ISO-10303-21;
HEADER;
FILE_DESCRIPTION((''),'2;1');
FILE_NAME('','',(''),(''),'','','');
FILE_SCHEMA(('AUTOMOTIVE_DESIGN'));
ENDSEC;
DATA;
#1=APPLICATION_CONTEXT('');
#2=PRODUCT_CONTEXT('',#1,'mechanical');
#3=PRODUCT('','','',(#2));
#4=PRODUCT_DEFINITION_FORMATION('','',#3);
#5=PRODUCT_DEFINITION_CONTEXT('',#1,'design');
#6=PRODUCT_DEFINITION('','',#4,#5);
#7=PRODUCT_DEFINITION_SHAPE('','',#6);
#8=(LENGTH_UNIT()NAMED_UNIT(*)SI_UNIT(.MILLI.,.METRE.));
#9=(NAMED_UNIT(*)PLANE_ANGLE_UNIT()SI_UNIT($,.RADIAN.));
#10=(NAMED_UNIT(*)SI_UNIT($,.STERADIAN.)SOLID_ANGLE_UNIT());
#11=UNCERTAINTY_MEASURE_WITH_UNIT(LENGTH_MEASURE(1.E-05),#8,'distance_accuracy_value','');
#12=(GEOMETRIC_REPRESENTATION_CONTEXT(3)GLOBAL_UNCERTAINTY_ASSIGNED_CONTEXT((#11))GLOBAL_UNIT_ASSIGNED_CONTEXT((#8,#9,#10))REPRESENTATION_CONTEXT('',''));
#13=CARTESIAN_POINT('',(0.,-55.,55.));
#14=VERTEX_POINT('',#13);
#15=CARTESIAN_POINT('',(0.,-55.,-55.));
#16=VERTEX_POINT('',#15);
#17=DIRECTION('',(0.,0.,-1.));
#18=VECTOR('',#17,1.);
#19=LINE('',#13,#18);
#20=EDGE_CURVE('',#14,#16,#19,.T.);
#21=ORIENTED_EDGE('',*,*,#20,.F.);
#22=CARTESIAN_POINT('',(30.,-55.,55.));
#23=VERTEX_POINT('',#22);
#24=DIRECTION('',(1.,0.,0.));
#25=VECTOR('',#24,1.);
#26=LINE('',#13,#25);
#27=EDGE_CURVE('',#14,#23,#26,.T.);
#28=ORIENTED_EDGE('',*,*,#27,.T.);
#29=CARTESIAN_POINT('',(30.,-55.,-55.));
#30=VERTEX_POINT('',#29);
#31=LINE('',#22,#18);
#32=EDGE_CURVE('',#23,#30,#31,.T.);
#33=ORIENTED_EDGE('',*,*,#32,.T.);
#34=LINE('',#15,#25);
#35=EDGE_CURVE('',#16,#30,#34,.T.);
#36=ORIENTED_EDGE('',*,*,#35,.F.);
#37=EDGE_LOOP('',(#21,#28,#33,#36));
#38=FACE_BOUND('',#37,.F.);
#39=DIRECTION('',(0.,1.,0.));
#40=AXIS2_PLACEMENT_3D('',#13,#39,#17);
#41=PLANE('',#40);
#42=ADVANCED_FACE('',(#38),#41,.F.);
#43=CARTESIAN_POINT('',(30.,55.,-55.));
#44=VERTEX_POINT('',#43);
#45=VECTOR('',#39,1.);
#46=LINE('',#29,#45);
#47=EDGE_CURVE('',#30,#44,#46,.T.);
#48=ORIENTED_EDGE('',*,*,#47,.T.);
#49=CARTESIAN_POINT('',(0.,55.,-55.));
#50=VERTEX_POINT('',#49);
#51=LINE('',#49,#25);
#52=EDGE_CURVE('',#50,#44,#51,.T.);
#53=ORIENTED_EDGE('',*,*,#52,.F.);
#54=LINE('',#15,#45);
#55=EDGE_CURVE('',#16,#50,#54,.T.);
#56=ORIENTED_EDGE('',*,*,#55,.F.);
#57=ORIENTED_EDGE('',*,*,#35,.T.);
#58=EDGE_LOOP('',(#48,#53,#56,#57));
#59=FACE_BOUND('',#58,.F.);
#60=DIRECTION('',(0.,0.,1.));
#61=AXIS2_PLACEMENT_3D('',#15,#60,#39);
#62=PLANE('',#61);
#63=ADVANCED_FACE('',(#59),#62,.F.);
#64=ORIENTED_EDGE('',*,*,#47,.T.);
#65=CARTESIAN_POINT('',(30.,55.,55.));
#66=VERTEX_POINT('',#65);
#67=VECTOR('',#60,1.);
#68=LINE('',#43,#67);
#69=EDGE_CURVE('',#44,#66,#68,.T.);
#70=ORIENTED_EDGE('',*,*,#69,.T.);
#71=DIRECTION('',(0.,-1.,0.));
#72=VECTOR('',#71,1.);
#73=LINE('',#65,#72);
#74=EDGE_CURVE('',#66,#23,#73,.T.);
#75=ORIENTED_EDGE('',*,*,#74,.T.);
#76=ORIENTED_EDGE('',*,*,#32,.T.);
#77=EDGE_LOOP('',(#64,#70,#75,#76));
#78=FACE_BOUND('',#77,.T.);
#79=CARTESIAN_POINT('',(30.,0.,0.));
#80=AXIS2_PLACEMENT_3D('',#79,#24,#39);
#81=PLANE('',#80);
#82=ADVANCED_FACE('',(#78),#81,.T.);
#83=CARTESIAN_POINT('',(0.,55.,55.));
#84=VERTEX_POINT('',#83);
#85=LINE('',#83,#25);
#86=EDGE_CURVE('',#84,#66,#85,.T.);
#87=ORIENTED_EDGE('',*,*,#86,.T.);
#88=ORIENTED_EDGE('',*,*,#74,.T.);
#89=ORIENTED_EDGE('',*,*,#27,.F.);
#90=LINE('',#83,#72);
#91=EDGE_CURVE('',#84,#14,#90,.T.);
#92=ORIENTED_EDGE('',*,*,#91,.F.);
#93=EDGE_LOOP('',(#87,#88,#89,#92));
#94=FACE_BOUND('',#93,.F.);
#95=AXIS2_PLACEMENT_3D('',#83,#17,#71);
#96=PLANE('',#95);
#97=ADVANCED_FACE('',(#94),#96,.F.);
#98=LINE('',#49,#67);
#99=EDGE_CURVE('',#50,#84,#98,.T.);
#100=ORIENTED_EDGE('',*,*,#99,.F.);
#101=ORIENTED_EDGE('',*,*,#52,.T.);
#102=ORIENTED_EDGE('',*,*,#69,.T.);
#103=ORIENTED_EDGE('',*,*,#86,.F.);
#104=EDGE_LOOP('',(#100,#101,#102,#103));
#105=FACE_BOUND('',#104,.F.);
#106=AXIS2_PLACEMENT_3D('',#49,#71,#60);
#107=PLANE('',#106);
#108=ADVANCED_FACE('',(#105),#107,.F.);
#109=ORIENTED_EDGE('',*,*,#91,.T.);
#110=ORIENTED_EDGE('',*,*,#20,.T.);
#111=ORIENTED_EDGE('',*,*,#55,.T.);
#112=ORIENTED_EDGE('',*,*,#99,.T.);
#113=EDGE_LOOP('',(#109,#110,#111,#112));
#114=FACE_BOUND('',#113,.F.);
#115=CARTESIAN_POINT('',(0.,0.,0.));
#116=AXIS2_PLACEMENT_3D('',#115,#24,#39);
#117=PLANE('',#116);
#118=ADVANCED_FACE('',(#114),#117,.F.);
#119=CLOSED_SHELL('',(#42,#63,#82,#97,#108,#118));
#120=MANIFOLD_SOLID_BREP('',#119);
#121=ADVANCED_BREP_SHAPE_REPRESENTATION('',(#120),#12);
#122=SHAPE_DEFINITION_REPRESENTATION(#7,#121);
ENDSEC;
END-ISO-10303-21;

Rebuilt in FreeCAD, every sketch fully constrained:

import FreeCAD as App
import Part
import Sketcher

V = App.Vector


def add_polygon(sketch, points):
    """Adds a closed chain of lines whose ends are joined by coincident constraints."""
    first, n = sketch.GeometryCount, len(points)
    for a, b in zip(points, points[1:] + points[:1]):
        sketch.addGeometry(Part.LineSegment(App.Vector(*a, 0), App.Vector(*b, 0)), False)
    for i in range(n):
        sketch.addConstraint(Sketcher.Constraint("Coincident", first + i, 2, first + (i + 1) % n, 1))

doc = App.newDocument("Part")
body = doc.addObject("PartDesign::Body", "Body")

sketch1 = body.newObject("Sketcher::SketchObject", "Sketch")
sketch1.AttachmentSupport = (doc.getObject("YZ_Plane"), [""])
sketch1.MapMode = "FlatFace"
add_polygon(sketch1, [(-55, 55), (-55, -55), (55, -55), (55, 55)])
sketch1.addConstraint([
    Sketcher.Constraint("Vertical", 0),
    Sketcher.Constraint("Horizontal", 1),
    Sketcher.Constraint("Vertical", 2),
    Sketcher.Constraint("Horizontal", 3),
    Sketcher.Constraint("Symmetric", 0, 2, 2, 2, -1, 1),
    Sketcher.Constraint("Equal", 3, 0),
    Sketcher.Constraint("DistanceX", 1, 1, 1, 2, 110.0),
])
pad1 = body.newObject("PartDesign::Pad", "Pad")
pad1.Profile = sketch1
pad1.Length = 30

doc.recompute()
